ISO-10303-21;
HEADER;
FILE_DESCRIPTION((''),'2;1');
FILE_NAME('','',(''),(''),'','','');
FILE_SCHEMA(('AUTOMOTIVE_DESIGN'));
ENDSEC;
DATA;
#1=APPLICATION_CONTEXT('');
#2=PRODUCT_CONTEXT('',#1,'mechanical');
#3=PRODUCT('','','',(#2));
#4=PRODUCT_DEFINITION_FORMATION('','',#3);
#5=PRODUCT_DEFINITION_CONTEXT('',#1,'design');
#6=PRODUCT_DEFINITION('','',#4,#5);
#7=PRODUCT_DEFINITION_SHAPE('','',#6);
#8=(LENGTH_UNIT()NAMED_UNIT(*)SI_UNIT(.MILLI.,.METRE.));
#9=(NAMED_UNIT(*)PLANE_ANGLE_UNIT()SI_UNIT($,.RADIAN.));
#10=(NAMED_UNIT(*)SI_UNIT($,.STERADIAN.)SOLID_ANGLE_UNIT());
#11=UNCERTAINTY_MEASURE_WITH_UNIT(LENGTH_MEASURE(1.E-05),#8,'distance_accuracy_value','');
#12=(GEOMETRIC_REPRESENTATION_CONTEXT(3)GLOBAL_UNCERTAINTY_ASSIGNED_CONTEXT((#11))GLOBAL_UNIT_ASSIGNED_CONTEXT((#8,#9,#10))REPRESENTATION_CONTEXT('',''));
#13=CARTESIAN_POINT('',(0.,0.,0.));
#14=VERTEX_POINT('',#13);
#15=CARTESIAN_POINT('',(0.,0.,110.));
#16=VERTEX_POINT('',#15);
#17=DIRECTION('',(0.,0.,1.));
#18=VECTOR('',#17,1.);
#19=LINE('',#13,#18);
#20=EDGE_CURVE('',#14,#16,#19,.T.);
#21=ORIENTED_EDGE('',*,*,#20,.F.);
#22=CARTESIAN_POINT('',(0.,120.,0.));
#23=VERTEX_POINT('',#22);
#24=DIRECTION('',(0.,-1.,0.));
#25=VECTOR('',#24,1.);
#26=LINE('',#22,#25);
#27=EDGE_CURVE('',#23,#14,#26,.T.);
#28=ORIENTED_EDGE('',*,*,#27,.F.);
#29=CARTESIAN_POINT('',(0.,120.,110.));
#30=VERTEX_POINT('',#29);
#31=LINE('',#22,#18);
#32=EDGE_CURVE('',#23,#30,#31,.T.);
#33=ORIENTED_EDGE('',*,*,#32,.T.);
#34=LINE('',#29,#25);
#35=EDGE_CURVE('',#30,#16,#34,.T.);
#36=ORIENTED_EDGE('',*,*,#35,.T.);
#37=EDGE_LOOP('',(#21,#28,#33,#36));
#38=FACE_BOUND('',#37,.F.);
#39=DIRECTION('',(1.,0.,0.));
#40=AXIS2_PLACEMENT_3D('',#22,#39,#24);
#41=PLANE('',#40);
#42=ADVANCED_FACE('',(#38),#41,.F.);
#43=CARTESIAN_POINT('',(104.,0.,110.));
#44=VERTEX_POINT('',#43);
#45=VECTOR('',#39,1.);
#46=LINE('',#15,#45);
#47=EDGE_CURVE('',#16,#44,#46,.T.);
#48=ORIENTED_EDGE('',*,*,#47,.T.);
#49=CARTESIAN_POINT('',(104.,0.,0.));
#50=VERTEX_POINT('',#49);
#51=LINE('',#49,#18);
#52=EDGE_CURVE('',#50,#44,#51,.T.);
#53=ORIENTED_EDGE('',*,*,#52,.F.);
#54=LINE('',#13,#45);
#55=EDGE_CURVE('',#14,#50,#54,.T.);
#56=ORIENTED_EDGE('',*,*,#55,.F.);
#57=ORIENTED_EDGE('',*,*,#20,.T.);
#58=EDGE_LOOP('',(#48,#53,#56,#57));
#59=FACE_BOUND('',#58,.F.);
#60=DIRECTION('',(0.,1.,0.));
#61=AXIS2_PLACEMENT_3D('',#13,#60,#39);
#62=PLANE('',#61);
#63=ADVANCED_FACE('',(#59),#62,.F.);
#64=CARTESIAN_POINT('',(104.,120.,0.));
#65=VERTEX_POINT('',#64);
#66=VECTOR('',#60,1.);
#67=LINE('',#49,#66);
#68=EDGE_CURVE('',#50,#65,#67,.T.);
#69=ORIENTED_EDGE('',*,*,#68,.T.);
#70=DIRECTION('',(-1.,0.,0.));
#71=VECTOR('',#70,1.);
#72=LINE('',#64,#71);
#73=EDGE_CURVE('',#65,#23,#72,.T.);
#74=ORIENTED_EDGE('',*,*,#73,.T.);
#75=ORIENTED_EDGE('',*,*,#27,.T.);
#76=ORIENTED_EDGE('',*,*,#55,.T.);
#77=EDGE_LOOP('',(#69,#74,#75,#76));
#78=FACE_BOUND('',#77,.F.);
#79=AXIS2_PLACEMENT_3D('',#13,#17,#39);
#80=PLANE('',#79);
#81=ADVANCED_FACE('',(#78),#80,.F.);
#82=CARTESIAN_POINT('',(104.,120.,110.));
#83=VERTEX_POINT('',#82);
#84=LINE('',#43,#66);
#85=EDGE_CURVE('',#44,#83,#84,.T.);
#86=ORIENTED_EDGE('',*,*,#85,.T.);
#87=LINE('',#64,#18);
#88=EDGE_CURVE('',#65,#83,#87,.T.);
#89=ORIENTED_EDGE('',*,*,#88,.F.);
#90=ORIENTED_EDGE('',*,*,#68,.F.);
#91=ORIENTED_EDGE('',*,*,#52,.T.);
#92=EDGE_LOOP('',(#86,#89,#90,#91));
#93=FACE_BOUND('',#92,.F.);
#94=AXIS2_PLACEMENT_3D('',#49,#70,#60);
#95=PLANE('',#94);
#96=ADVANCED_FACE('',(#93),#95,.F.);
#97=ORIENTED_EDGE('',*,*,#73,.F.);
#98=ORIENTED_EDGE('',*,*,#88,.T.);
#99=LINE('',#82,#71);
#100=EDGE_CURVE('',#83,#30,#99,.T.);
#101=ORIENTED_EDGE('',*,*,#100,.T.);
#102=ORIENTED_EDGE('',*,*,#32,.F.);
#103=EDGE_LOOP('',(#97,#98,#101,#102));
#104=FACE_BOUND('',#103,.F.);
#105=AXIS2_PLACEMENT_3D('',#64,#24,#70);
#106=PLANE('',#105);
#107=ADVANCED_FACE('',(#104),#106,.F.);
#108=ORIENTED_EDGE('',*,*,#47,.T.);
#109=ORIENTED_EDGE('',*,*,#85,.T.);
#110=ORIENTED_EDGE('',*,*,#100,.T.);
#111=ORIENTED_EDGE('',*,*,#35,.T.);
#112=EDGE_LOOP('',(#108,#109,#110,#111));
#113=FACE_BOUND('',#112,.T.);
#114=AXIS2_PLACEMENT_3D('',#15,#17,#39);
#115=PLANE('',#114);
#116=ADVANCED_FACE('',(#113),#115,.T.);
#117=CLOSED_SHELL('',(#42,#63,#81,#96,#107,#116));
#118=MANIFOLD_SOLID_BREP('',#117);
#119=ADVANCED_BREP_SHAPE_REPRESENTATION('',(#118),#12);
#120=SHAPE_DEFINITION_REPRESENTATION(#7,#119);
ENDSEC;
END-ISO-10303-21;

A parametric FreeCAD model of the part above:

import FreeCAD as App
import Part
import Sketcher
from FreeCAD import Vector
Q = App.Units.Quantity

doc = App.newDocument("Part")
body = doc.addObject("PartDesign::Body", "Body")

sketch1 = doc.addObject("Sketcher::SketchObject", "Sketch")
body.addObject(sketch1)
sketch1.AttachmentSupport = (doc.XY_Plane, [""])
sketch1.MapMode = "FlatFace"
sketch1.addGeometry(Part.LineSegment(Vector(0, 120, 0), Vector(0, 0, 0)), False)
sketch1.addGeometry(Part.LineSegment(Vector(0, 0, 0), Vector(104, 0, 0)), False)
sketch1.addGeometry(Part.LineSegment(Vector(104, 0, 0), Vector(104, 120, 0)), False)
sketch1.addGeometry(Part.LineSegment(Vector(104, 120, 0), Vector(0, 120, 0)), False)
sketch1.addConstraint(Sketcher.Constraint("Coincident", 0, 2, 1, 1))
sketch1.addConstraint(Sketcher.Constraint("Coincident", 1, 2, 2, 1))
sketch1.addConstraint(Sketcher.Constraint("Coincident", 2, 2, 3, 1))
sketch1.addConstraint(Sketcher.Constraint("Coincident", 3, 2, 0, 1))
sketch1.addConstraint(Sketcher.Constraint("Vertical", 0))
sketch1.addConstraint(Sketcher.Constraint("Horizontal", 1))
sketch1.addConstraint(Sketcher.Constraint("Vertical", 2))
sketch1.addConstraint(Sketcher.Constraint("Horizontal", 3))
sketch1.addConstraint(Sketcher.Constraint("Coincident", 0, 2, -1, 1))
sketch1.addConstraint(Sketcher.Constraint("DistanceX", 1, 1, 1, 2, Q("104 mm")))
sketch1.addConstraint(Sketcher.Constraint("DistanceY", 0, 2, 0, 1, Q("120 mm")))
pad1 = doc.addObject("PartDesign::Pad", "Pad")
body.addObject(pad1)
pad1.Profile = sketch1
pad1.Length = 110

doc.recompute()
